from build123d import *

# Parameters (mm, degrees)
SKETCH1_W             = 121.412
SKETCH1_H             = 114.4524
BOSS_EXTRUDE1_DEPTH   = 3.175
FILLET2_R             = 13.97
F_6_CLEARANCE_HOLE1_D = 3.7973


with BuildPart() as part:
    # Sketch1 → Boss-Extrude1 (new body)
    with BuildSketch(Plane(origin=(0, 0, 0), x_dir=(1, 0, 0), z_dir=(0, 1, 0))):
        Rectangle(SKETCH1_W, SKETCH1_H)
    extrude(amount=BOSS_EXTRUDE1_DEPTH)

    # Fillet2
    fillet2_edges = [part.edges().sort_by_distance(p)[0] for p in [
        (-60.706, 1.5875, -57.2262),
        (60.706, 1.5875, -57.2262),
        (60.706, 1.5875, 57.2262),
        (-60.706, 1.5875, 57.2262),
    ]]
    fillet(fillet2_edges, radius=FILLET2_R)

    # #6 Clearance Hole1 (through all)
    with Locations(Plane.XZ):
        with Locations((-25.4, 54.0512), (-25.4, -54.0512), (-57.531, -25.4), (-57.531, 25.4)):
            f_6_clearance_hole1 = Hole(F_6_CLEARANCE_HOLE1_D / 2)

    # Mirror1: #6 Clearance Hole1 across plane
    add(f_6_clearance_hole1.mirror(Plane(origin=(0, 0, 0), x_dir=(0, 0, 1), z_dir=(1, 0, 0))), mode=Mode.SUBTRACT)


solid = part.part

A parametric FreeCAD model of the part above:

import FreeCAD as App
import Part
import Sketcher
Q = App.Units.Quantity


def edges_at(feature, points):
    """Names of the edges that pass closest to the given points."""
    edges = feature.Shape.Edges
    near = lambda p: min(range(len(edges)), key=lambda i: edges[i].distToShape(Part.Vertex(*p))[0])
    return sorted({f"Edge{near(p) + 1}" for p in points})

doc = App.newDocument("Part")
params = doc.addObject("Spreadsheet::Sheet", "Params")
for row, (alias, value) in enumerate([
    ("sketch1_width", "4.78 in"),
    ("sketch1_height", "4.506 in"),
    ("pad1_length", "0.125 in"),
    ("fillet_radius", "0.55 in"),
    ("hole_diameter", "0.1495 in"),
], start=1):
    params.set(f"A{row}", alias)
    params.set(f"B{row}", "=" + value)
    params.setAlias(f"B{row}", alias)

body = doc.addObject("PartDesign::Body", "Body")

sketch1 = doc.addObject("Sketcher::SketchObject", "Sketch")
body.addObject(sketch1)
sketch1.AttachmentSupport = (doc.XZ_Plane, [""])
sketch1.MapMode = "FlatFace"
sketch1.addGeometry(Part.LineSegment(App.Vector(-61, -57, 0), App.Vector(-61, 57, 0)), False)
sketch1.addGeometry(Part.LineSegment(App.Vector(-61, 57, 0), App.Vector(61, 57, 0)), False)
sketch1.addGeometry(Part.LineSegment(App.Vector(61, 57, 0), App.Vector(61, -57, 0)), False)
sketch1.addGeometry(Part.LineSegment(App.Vector(61, -57, 0), App.Vector(-61, -57, 0)), False)
sketch1.addConstraint(Sketcher.Constraint("Coincident", 0, 2, 1, 1))
sketch1.addConstraint(Sketcher.Constraint("Coincident", 1, 2, 2, 1))
sketch1.addConstraint(Sketcher.Constraint("Coincident", 2, 2, 3, 1))
sketch1.addConstraint(Sketcher.Constraint("Coincident", 3, 2, 0, 1))
sketch1.addConstraint(Sketcher.Constraint("Vertical", 0))
sketch1.addConstraint(Sketcher.Constraint("Horizontal", 1))
sketch1.addConstraint(Sketcher.Constraint("Vertical", 2))
sketch1.addConstraint(Sketcher.Constraint("Horizontal", 3))
sketch1.addConstraint(Sketcher.Constraint("Symmetric", 0, 2, 2, 2, -1, 1))
sketch1.addConstraint(Sketcher.Constraint("DistanceX", 1, 1, 1, 2, Q("4.78 in")))
sketch1.addConstraint(Sketcher.Constraint("DistanceY", 0, 1, 0, 2, Q("4.506 in")))
sketch1.setExpression("Constraints[9]", "Params.sketch1_width")
sketch1.setExpression("Constraints[10]", "Params.sketch1_height")
pad1 = doc.addObject("PartDesign::Pad", "Pad")
body.addObject(pad1)
pad1.Profile = sketch1
pad1.setExpression("Length", "Params.pad1_length")
pad1.Reversed = True
doc.recompute()

fillet = doc.addObject("PartDesign::Fillet", "Fillet")
body.addObject(fillet)
fillet.Base = (pad1, edges_at(pad1, [
    (-60.706, 1.587, -57.226),
    (60.706, 1.587, -57.226),
    (60.706, 1.587, 57.226),
    (-60.706, 1.587, 57.226),
]))
fillet.setExpression("Radius", "Params.fillet_radius")

sketch2 = doc.addObject("Sketcher::SketchObject", "Sketch001")
body.addObject(sketch2)
sketch2.AttachmentSupport = (doc.XZ_Plane, [""])
sketch2.MapMode = "FlatFace"
sketch2.addGeometry(Part.Circle(App.Vector(-25.4, 54.1, 0), App.Vector(0, 0, 1), 1.9), False)
sketch2.addGeometry(Part.Circle(App.Vector(-25.4, -54.1, 0), App.Vector(0, 0, 1), 1.9), False)
sketch2.addGeometry(Part.Circle(App.Vector(-57.5, -25.4, 0), App.Vector(0, 0, 1), 1.9), False)
sketch2.addGeometry(Part.Circle(App.Vector(-57.5, 25.4, 0), App.Vector(0, 0, 1), 1.9), False)
sketch2.addConstraint(Sketcher.Constraint("Equal", 0, 1))
sketch2.addConstraint(Sketcher.Constraint("Equal", 1, 2))
sketch2.addConstraint(Sketcher.Constraint("Equal", 2, 3))
sketch2.addConstraint(Sketcher.Constraint("Symmetric", 0, 3, 1, 3, -1))
sketch2.addConstraint(Sketcher.Constraint("Symmetric", 2, 3, 3, 3, -1))
sketch2.addConstraint(Sketcher.Constraint("DistanceX", 0, 3, -1, 1, Q("1 in")))
sketch2.addConstraint(Sketcher.Constraint("DistanceY", 2, 3, -1, 1, Q("1 in")))
sketch2.addConstraint(Sketcher.Constraint("Diameter", 0, Q("0.1495 in")))
sketch2.addConstraint(Sketcher.Constraint("DistanceY", -1, 1, 0, 3, Q("2.128 in")))
sketch2.addConstraint(Sketcher.Constraint("DistanceX", 2, 3, -1, 1, Q("2.265 in")))
doc.recompute()
hole = doc.addObject("PartDesign::Hole", "Hole")
body.addObject(hole)
hole.Profile = sketch2
hole.ThreadType = "None"
hole.setExpression("Diameter", "Params.hole_diameter")
hole.DepthType = "ThroughAll"
doc.recompute()

mirrored = doc.addObject("PartDesign::Mirrored", "Mirrored")
body.addObject(mirrored)
mirrored.Originals = [hole]
mirrored.MirrorPlane = (doc.YZ_Plane, [""])
body.Tip = mirrored

doc.recompute()
